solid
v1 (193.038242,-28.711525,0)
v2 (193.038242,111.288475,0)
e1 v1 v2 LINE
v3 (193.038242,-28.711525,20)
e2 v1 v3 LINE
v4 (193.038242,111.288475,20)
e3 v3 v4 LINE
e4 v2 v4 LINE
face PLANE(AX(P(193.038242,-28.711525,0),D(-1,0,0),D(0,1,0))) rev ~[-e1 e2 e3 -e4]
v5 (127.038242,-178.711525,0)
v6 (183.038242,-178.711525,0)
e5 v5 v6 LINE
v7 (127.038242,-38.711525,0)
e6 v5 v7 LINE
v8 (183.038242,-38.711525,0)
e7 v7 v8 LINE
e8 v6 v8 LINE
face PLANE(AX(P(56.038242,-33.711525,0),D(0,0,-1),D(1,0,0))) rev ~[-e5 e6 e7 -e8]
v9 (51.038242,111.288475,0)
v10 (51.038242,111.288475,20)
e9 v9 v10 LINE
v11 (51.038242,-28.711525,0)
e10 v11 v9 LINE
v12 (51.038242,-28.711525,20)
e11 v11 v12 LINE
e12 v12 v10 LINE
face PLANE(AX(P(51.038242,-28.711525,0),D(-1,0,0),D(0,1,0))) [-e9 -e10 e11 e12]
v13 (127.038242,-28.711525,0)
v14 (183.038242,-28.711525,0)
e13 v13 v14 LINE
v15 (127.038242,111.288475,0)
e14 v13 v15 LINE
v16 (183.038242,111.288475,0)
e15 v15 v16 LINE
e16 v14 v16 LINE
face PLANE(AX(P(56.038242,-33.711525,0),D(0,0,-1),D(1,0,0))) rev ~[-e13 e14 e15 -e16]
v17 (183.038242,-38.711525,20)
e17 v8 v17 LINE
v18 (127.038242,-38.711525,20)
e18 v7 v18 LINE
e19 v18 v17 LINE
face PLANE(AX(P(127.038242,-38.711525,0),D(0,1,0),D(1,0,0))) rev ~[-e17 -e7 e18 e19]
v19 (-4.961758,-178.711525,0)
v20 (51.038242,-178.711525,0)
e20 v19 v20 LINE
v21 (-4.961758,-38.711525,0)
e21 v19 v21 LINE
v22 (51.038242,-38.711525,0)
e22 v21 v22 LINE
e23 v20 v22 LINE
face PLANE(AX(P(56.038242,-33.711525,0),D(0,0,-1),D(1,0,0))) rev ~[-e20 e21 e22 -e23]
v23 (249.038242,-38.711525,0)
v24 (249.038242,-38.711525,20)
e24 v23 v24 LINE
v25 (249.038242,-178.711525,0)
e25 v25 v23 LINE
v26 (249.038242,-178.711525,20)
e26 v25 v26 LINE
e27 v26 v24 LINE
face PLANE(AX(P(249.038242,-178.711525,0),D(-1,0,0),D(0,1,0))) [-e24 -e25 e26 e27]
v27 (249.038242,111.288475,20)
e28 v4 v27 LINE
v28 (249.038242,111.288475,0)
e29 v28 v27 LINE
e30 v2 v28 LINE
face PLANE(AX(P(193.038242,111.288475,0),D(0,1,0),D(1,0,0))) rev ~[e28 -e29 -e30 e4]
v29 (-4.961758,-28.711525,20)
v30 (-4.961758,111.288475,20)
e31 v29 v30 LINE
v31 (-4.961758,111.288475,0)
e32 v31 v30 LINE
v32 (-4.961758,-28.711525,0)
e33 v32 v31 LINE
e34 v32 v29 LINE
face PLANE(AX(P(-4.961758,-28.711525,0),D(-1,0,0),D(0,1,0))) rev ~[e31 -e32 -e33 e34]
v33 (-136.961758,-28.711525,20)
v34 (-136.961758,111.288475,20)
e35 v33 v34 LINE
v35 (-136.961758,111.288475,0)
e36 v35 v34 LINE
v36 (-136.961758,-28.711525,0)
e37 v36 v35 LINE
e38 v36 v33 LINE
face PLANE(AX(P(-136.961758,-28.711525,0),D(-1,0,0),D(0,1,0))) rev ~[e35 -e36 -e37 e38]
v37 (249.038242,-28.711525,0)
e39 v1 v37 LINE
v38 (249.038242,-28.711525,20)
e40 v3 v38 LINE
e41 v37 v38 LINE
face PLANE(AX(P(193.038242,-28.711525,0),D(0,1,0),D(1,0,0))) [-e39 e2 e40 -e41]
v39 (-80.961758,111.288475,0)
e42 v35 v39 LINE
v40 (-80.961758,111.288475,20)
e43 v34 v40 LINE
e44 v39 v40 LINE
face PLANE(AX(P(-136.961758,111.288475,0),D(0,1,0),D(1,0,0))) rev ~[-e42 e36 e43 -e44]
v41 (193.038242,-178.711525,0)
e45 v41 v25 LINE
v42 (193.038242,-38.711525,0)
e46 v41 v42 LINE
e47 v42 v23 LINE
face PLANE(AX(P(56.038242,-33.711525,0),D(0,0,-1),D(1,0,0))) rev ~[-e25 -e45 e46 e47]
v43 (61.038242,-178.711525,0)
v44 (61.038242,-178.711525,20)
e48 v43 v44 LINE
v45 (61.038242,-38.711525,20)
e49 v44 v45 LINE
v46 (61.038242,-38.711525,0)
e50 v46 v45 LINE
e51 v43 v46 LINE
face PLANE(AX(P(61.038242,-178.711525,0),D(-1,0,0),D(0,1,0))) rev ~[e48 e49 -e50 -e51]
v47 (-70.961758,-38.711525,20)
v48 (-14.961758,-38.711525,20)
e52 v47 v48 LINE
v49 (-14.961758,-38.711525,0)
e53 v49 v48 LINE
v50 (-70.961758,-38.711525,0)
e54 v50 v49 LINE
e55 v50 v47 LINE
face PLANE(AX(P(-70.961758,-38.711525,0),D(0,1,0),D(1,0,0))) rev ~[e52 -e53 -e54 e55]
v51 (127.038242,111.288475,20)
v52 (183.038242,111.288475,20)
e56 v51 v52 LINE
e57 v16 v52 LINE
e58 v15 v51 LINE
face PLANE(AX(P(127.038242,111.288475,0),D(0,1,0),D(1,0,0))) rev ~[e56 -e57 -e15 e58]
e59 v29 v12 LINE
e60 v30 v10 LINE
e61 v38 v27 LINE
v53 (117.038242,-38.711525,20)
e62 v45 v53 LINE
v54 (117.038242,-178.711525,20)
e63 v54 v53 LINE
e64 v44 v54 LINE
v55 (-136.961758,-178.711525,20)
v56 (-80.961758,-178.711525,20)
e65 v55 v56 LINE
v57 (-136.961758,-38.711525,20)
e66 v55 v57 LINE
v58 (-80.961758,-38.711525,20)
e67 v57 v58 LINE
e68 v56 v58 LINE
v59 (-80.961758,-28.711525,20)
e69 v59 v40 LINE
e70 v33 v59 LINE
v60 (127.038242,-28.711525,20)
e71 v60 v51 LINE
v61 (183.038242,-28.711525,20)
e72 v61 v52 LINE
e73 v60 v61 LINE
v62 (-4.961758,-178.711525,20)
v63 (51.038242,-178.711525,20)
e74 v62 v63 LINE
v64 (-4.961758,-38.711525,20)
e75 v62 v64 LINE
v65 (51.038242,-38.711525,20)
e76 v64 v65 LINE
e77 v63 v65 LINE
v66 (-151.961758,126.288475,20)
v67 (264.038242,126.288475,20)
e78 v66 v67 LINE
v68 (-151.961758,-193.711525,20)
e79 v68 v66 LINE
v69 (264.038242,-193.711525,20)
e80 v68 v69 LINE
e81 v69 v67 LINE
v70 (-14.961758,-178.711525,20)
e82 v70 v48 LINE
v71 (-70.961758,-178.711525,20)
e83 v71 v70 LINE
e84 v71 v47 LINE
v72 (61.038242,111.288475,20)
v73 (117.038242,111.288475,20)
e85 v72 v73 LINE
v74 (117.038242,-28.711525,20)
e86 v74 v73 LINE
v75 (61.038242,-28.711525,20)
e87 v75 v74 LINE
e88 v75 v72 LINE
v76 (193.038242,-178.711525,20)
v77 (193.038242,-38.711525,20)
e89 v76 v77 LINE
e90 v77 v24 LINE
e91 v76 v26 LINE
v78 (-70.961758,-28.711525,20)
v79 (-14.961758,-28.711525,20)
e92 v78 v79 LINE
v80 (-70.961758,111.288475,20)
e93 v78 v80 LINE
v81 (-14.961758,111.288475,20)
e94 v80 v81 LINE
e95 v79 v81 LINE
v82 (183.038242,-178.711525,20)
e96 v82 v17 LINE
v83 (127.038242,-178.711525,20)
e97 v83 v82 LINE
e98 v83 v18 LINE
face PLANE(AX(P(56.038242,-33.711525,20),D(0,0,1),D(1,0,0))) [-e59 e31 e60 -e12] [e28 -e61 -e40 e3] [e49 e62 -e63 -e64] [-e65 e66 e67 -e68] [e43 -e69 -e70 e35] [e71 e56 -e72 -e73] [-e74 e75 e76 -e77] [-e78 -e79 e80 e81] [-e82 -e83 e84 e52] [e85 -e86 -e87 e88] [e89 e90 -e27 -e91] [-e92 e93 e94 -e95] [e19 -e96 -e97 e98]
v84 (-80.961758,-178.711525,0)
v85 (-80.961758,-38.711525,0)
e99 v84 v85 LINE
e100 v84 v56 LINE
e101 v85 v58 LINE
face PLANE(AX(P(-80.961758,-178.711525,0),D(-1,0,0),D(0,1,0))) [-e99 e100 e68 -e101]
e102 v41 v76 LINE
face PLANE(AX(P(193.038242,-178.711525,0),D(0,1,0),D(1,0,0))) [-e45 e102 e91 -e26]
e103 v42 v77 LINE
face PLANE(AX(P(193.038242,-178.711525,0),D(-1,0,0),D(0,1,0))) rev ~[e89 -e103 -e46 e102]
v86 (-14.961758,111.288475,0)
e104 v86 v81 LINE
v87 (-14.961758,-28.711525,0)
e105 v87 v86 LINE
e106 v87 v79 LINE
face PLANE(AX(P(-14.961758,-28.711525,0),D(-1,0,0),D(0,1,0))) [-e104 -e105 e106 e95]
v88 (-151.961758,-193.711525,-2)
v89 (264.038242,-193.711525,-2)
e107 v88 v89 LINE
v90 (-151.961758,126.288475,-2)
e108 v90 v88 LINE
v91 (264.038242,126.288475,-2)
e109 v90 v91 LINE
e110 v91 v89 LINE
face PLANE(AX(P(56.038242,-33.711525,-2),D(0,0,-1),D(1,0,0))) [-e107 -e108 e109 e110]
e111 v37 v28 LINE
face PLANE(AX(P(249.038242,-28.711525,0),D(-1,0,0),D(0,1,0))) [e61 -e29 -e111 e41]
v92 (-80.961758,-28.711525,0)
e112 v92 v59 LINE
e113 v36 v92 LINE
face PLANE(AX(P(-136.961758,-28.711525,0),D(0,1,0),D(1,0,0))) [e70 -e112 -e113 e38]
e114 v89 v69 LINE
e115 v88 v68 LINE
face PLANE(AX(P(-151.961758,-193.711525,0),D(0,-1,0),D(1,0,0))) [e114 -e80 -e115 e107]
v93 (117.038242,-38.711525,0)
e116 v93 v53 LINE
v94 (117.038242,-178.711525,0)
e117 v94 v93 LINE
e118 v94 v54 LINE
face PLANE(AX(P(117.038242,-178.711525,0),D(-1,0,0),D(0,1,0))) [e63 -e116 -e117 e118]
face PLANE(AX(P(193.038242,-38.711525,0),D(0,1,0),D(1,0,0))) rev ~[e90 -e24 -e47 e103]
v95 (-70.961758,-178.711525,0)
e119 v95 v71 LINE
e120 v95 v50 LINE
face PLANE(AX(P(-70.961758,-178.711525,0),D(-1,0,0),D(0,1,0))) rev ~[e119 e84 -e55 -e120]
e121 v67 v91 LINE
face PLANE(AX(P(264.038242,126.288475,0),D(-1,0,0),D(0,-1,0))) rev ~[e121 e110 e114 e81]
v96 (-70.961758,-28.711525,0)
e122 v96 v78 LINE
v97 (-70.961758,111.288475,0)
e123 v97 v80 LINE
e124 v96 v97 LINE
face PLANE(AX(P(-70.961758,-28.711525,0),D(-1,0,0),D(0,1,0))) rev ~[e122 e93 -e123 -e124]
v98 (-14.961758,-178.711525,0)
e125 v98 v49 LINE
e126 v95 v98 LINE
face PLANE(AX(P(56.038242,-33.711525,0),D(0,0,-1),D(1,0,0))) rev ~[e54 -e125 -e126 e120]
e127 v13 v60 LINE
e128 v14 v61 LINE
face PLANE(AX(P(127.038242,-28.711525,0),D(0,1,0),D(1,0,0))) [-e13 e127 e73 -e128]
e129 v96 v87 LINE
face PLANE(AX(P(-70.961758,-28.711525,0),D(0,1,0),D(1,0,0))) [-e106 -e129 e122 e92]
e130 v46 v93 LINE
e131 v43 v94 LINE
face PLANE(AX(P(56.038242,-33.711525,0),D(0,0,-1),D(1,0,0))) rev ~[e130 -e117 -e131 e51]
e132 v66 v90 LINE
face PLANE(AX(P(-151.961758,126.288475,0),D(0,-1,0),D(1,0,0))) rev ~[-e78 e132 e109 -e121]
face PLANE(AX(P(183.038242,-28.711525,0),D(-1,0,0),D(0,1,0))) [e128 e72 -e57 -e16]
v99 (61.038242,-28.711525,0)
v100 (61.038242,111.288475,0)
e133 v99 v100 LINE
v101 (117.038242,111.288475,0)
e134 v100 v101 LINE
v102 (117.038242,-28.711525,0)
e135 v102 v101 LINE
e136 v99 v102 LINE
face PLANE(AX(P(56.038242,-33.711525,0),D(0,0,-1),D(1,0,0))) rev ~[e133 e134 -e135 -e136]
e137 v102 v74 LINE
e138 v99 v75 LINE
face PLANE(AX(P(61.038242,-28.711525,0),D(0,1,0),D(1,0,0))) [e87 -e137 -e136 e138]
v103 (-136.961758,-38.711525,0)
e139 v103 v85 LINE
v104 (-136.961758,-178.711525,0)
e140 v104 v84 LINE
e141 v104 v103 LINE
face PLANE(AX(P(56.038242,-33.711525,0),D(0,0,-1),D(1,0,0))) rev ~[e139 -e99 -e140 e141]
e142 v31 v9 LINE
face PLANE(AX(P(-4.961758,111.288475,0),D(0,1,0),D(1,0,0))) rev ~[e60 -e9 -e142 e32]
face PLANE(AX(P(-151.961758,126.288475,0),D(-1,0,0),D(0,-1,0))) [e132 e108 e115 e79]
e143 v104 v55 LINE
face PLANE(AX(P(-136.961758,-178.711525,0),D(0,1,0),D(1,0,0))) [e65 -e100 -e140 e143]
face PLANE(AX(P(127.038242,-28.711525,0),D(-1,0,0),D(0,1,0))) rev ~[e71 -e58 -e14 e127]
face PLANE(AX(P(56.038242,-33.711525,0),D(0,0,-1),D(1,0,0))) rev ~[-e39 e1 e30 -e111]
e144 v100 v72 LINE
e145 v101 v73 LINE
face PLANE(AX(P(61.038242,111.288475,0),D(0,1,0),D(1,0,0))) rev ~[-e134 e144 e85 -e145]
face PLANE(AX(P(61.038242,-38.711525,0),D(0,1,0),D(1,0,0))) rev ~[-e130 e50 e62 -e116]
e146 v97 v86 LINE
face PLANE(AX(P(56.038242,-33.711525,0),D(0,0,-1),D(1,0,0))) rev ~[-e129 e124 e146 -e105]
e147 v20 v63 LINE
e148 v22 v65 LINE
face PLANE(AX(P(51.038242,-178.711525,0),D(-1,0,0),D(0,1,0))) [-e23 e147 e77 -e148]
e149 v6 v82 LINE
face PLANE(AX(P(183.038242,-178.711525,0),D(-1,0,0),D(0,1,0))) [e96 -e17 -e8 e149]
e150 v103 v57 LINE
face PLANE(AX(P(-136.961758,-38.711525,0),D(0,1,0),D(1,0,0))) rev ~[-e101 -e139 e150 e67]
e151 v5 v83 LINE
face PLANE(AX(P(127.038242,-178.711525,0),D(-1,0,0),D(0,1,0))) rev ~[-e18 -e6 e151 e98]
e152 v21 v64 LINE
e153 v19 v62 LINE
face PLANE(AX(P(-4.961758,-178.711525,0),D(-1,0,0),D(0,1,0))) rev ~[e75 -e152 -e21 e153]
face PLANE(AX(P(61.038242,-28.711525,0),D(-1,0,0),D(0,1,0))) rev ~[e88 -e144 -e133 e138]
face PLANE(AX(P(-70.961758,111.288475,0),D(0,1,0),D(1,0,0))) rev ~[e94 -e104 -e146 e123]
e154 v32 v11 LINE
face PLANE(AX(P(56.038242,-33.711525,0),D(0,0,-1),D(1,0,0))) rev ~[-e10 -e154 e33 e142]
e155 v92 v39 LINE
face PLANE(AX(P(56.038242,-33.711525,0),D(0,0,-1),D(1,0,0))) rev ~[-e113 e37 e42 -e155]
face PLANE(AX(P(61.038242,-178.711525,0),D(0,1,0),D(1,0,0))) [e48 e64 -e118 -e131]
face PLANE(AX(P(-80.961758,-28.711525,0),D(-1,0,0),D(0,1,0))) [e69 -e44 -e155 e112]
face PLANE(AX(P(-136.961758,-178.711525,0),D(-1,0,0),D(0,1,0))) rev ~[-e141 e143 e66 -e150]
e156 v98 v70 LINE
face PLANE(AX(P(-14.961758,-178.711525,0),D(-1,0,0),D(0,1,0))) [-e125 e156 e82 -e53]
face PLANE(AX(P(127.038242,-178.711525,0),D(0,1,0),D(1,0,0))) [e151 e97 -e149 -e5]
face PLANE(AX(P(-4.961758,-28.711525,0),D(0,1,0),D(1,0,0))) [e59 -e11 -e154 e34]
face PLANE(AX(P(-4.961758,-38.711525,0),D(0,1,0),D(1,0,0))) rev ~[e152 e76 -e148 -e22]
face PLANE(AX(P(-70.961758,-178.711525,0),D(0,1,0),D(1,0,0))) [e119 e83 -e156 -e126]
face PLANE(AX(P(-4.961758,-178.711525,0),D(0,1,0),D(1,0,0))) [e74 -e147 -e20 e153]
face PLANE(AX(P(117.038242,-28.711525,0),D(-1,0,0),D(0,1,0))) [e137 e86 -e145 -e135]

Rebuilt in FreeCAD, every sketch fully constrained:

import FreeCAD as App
import Part
import Sketcher
Q = App.Units.Quantity


def add_polygon(sketch, points):
    """Adds a closed chain of lines whose ends are joined by coincident constraints."""
    first, n = sketch.GeometryCount, len(points)
    for a, b in zip(points, points[1:] + points[:1]):
        sketch.addGeometry(Part.LineSegment(App.Vector(*a, 0), App.Vector(*b, 0)), False)
    for i in range(n):
        sketch.addConstraint(Sketcher.Constraint("Coincident", first + i, 2, first + (i + 1) % n, 1))

doc = App.newDocument("Part")
params = doc.addObject("Spreadsheet::Sheet", "Params")
for row, (alias, value) in enumerate([
    ("sketch1_width", "416 mm"),
    ("sketch1_width2", "56 mm"),
    ("sketch1_height", "320 mm"),
    ("sketch1_height2", "140 mm"),
    ("pad1_length", "20 mm"),
    ("sketch2_width", "416 mm"),
    ("sketch2_height", "320 mm"),
    ("pad2_length", "2 mm"),
], start=1):
    params.set(f"A{row}", alias)
    params.set(f"B{row}", "=" + value)
    params.setAlias(f"B{row}", alias)

body = doc.addObject("PartDesign::Body", "Body")

# Sketch on XY plane
sketch1 = doc.addObject("Sketcher::SketchObject", "Sketch")
body.addObject(sketch1)
sketch1.AttachmentSupport = (doc.XY_Plane, [""])
sketch1.MapMode = "FlatFace"
add_polygon(sketch1, [(-151.961758, 126.288475), (-151.961758, -193.711525), (264.038242, -193.711525), (264.038242, 126.288475)])  # lines 0-3
add_polygon(sketch1, [(-80.961758, -178.711525), (-136.961758, -178.711525), (-136.961758, -38.711525), (-80.961758, -38.711525)])  # lines 4-7
add_polygon(sketch1, [(-14.961758, -178.711525), (-70.961758, -178.711525), (-70.961758, -38.711525), (-14.961758, -38.711525)])  # lines 8-11
add_polygon(sketch1, [(51.038242, -178.711525), (-4.961758, -178.711525), (-4.961758, -38.711525), (51.038242, -38.711525)])  # lines 12-15
add_polygon(sketch1, [(117.038242, -178.711525), (61.038242, -178.711525), (61.038242, -38.711525), (117.038242, -38.711525)])  # lines 16-19
add_polygon(sketch1, [(183.038242, -178.711525), (127.038242, -178.711525), (127.038242, -38.711525), (183.038242, -38.711525)])  # lines 20-23
add_polygon(sketch1, [(249.038242, -178.711525), (193.038242, -178.711525), (193.038242, -38.711525), (249.038242, -38.711525)])  # lines 24-27
add_polygon(sketch1, [(-80.961758, -28.711525), (-136.961758, -28.711525), (-136.961758, 111.288475), (-80.961758, 111.288475)])  # lines 28-31
add_polygon(sketch1, [(-14.961758, -28.711525), (-70.961758, -28.711525), (-70.961758, 111.288475), (-14.961758, 111.288475)])  # lines 32-35
add_polygon(sketch1, [(51.038242, -28.711525), (-4.961758, -28.711525), (-4.961758, 111.288475), (51.038242, 111.288475)])  # lines 36-39
add_polygon(sketch1, [(117.038242, -28.711525), (61.038242, -28.711525), (61.038242, 111.288475), (117.038242, 111.288475)])  # lines 40-43
add_polygon(sketch1, [(183.038242, -28.711525), (127.038242, -28.711525), (127.038242, 111.288475), (183.038242, 111.288475)])  # lines 44-47
add_polygon(sketch1, [(249.038242, -28.711525), (193.038242, -28.711525), (193.038242, 111.288475), (249.038242, 111.288475)])  # lines 48-51
sketch1.addConstraint(Sketcher.Constraint("Vertical", 0))
sketch1.addConstraint(Sketcher.Constraint("Horizontal", 1))
sketch1.addConstraint(Sketcher.Constraint("Vertical", 2))
sketch1.addConstraint(Sketcher.Constraint("Horizontal", 3))
sketch1.addConstraint(Sketcher.Constraint("Horizontal", 4))
sketch1.addConstraint(Sketcher.Constraint("Vertical", 5))
sketch1.addConstraint(Sketcher.Constraint("Horizontal", 6))
sketch1.addConstraint(Sketcher.Constraint("Vertical", 7))
sketch1.addConstraint(Sketcher.Constraint("Horizontal", 8))
sketch1.addConstraint(Sketcher.Constraint("Vertical", 9))
sketch1.addConstraint(Sketcher.Constraint("Horizontal", 10))
sketch1.addConstraint(Sketcher.Constraint("Vertical", 11))
sketch1.addConstraint(Sketcher.Constraint("Horizontal", 12))
sketch1.addConstraint(Sketcher.Constraint("Vertical", 13))
sketch1.addConstraint(Sketcher.Constraint("Horizontal", 14))
sketch1.addConstraint(Sketcher.Constraint("Vertical", 15))
sketch1.addConstraint(Sketcher.Constraint("Horizontal", 16))
sketch1.addConstraint(Sketcher.Constraint("Vertical", 17))
sketch1.addConstraint(Sketcher.Constraint("Horizontal", 18))
sketch1.addConstraint(Sketcher.Constraint("Vertical", 19))
sketch1.addConstraint(Sketcher.Constraint("Horizontal", 20))
sketch1.addConstraint(Sketcher.Constraint("Vertical", 21))
sketch1.addConstraint(Sketcher.Constraint("Horizontal", 22))
sketch1.addConstraint(Sketcher.Constraint("Vertical", 23))
sketch1.addConstraint(Sketcher.Constraint("Horizontal", 24))
sketch1.addConstraint(Sketcher.Constraint("Vertical", 25))
sketch1.addConstraint(Sketcher.Constraint("Horizontal", 26))
sketch1.addConstraint(Sketcher.Constraint("Vertical", 27))
sketch1.addConstraint(Sketcher.Constraint("Horizontal", 28))
sketch1.addConstraint(Sketcher.Constraint("Vertical", 29))
sketch1.addConstraint(Sketcher.Constraint("Horizontal", 30))
sketch1.addConstraint(Sketcher.Constraint("Vertical", 31))
sketch1.addConstraint(Sketcher.Constraint("Horizontal", 32))
sketch1.addConstraint(Sketcher.Constraint("Vertical", 33))
sketch1.addConstraint(Sketcher.Constraint("Horizontal", 34))
sketch1.addConstraint(Sketcher.Constraint("Vertical", 35))
sketch1.addConstraint(Sketcher.Constraint("Horizontal", 36))
sketch1.addConstraint(Sketcher.Constraint("Vertical", 37))
sketch1.addConstraint(Sketcher.Constraint("Horizontal", 38))
sketch1.addConstraint(Sketcher.Constraint("Vertical", 39))
sketch1.addConstraint(Sketcher.Constraint("Horizontal", 40))
sketch1.addConstraint(Sketcher.Constraint("Vertical", 41))
sketch1.addConstraint(Sketcher.Constraint("Horizontal", 42))
sketch1.addConstraint(Sketcher.Constraint("Vertical", 43))
sketch1.addConstraint(Sketcher.Constraint("Horizontal", 44))
sketch1.addConstraint(Sketcher.Constraint("Vertical", 45))
sketch1.addConstraint(Sketcher.Constraint("Horizontal", 46))
sketch1.addConstraint(Sketcher.Constraint("Vertical", 47))
sketch1.addConstraint(Sketcher.Constraint("Horizontal", 48))
sketch1.addConstraint(Sketcher.Constraint("Vertical", 49))
sketch1.addConstraint(Sketcher.Constraint("Horizontal", 50))
sketch1.addConstraint(Sketcher.Constraint("Vertical", 51))
sketch1.addConstraint(Sketcher.Constraint("Horizontal", 7, 2, 8, 2))
sketch1.addConstraint(Sketcher.Constraint("Horizontal", 6, 2, 9, 2))
sketch1.addConstraint(Sketcher.Constraint("Horizontal", 11, 2, 12, 2))
sketch1.addConstraint(Sketcher.Constraint("Horizontal", 10, 2, 13, 2))
sketch1.addConstraint(Sketcher.Constraint("Horizontal", 15, 2, 16, 2))
sketch1.addConstraint(Sketcher.Constraint("Horizontal", 14, 2, 17, 2))
sketch1.addConstraint(Sketcher.Constraint("Horizontal", 19, 2, 20, 2))
sketch1.addConstraint(Sketcher.Constraint("Horizontal", 18, 2, 21, 2))
sketch1.addConstraint(Sketcher.Constraint("Horizontal", 23, 2, 24, 2))
sketch1.addConstraint(Sketcher.Constraint("Horizontal", 22, 2, 25, 2))
sketch1.addConstraint(Sketcher.Constraint("Horizontal", 31, 2, 32, 2))
sketch1.addConstraint(Sketcher.Constraint("Horizontal", 30, 2, 33, 2))
sketch1.addConstraint(Sketcher.Constraint("Horizontal", 35, 2, 36, 2))
sketch1.addConstraint(Sketcher.Constraint("Horizontal", 34, 2, 37, 2))
sketch1.addConstraint(Sketcher.Constraint("Horizontal", 39, 2, 40, 2))
sketch1.addConstraint(Sketcher.Constraint("Horizontal", 38, 2, 41, 2))
sketch1.addConstraint(Sketcher.Constraint("Horizontal", 43, 2, 44, 2))
sketch1.addConstraint(Sketcher.Constraint("Horizontal", 42, 2, 45, 2))
sketch1.addConstraint(Sketcher.Constraint("Horizontal", 47, 2, 48, 2))
sketch1.addConstraint(Sketcher.Constraint("Horizontal", 46, 2, 49, 2))
sketch1.addConstraint(Sketcher.Constraint("Vertical", 5, 2, 28, 2))
sketch1.addConstraint(Sketcher.Constraint("Vertical", 7, 2, 30, 2))
sketch1.addConstraint(Sketcher.Constraint("Vertical", 9, 2, 32, 2))
sketch1.addConstraint(Sketcher.Constraint("Vertical", 11, 2, 34, 2))
sketch1.addConstraint(Sketcher.Constraint("Vertical", 13, 2, 36, 2))
sketch1.addConstraint(Sketcher.Constraint("Vertical", 15, 2, 38, 2))
sketch1.addConstraint(Sketcher.Constraint("Vertical", 17, 2, 40, 2))
sketch1.addConstraint(Sketcher.Constraint("Vertical", 19, 2, 42, 2))
sketch1.addConstraint(Sketcher.Constraint("Vertical", 21, 2, 44, 2))
sketch1.addConstraint(Sketcher.Constraint("Vertical", 23, 2, 46, 2))
sketch1.addConstraint(Sketcher.Constraint("Vertical", 25, 2, 48, 2))
sketch1.addConstraint(Sketcher.Constraint("Vertical", 27, 2, 50, 2))
sketch1.addConstraint(Sketcher.Constraint("Equal", 6, 8))
sketch1.addConstraint(Sketcher.Constraint("Equal", 10, 12))
sketch1.addConstraint(Sketcher.Constraint("Equal", 14, 16))
sketch1.addConstraint(Sketcher.Constraint("Equal", 18, 20))
sketch1.addConstraint(Sketcher.Constraint("Equal", 22, 24))
sketch1.addConstraint(Sketcher.Constraint("Equal", 27, 29))
sketch1.addConstraint(Sketcher.Constraint("DistanceX", 1, 1, 1, 2, Q("416 mm")))
sketch1.addConstraint(Sketcher.Constraint("DistanceX", 4, 2, 4, 1, Q("56 mm")))
sketch1.addConstraint(Sketcher.Constraint("DistanceY", 0, 2, 0, 1, Q("320 mm")))
sketch1.addConstraint(Sketcher.Constraint("DistanceY", 5, 1, 5, 2, Q("140 mm")))
sketch1.addConstraint(Sketcher.Constraint("DistanceX", 0, 2, 4, 2, Q("15 mm")))
sketch1.addConstraint(Sketcher.Constraint("DistanceY", 0, 2, 4, 2, Q("15 mm")))
sketch1.addConstraint(Sketcher.Constraint("DistanceX", 7, 2, 8, 2, Q("10 mm")))
sketch1.addConstraint(Sketcher.Constraint("DistanceX", 11, 2, 12, 2, Q("10 mm")))
sketch1.addConstraint(Sketcher.Constraint("DistanceX", 15, 2, 16, 2, Q("10 mm")))
sketch1.addConstraint(Sketcher.Constraint("DistanceX", 19, 2, 20, 2, Q("10 mm")))
sketch1.addConstraint(Sketcher.Constraint("DistanceX", 23, 2, 24, 2, Q("10 mm")))
sketch1.addConstraint(Sketcher.Constraint("DistanceY", 5, 2, 28, 2, Q("10 mm")))
sketch1.addConstraint(Sketcher.Constraint("DistanceX", 0, 2, -1, 1, Q("151.961758 mm")))
sketch1.addConstraint(Sketcher.Constraint("DistanceY", 0, 2, -1, 1, Q("193.711525 mm")))
sketch1.setExpression("Constraints[142]", "Params.sketch1_width")
sketch1.setExpression("Constraints[143]", "Params.sketch1_width2")
sketch1.setExpression("Constraints[144]", "Params.sketch1_height")
sketch1.setExpression("Constraints[145]", "Params.sketch1_height2")
pad1 = doc.addObject("PartDesign::Pad", "Pad")
body.addObject(pad1)
pad1.Profile = sketch1
pad1.setExpression("Length", "Params.pad1_length")

# Sketch on XY plane
sketch2 = doc.addObject("Sketcher::SketchObject", "Sketch001")
body.addObject(sketch2)
sketch2.AttachmentSupport = (doc.XY_Plane, [""])
sketch2.MapMode = "FlatFace"
add_polygon(sketch2, [(-151.961758, -193.711525), (-151.961758, 126.288475), (264.038242, 126.288475), (264.038242, -193.711525)])  # lines 0-3
sketch2.addConstraint(Sketcher.Constraint("Vertical", 0))
sketch2.addConstraint(Sketcher.Constraint("Horizontal", 1))
sketch2.addConstraint(Sketcher.Constraint("Vertical", 2))
sketch2.addConstraint(Sketcher.Constraint("Horizontal", 3))
sketch2.addConstraint(Sketcher.Constraint("DistanceX", 1, 1, 1, 2, Q("416 mm")))
sketch2.addConstraint(Sketcher.Constraint("DistanceY", 0, 1, 0, 2, Q("320 mm")))
sketch2.addConstraint(Sketcher.Constraint("DistanceX", 0, 2, -1, 1, Q("151.961758 mm")))
sketch2.addConstraint(Sketcher.Constraint("DistanceY", -1, 1, 0, 2, Q("126.288475 mm")))
sketch2.setExpression("Constraints[8]", "Params.sketch2_width")
sketch2.setExpression("Constraints[9]", "Params.sketch2_height")
pad2 = doc.addObject("PartDesign::Pad", "Pad001")
body.addObject(pad2)
pad2.Profile = sketch2
pad2.setExpression("Length", "Params.pad2_length")
pad2.Reversed = True

doc.recompute()
